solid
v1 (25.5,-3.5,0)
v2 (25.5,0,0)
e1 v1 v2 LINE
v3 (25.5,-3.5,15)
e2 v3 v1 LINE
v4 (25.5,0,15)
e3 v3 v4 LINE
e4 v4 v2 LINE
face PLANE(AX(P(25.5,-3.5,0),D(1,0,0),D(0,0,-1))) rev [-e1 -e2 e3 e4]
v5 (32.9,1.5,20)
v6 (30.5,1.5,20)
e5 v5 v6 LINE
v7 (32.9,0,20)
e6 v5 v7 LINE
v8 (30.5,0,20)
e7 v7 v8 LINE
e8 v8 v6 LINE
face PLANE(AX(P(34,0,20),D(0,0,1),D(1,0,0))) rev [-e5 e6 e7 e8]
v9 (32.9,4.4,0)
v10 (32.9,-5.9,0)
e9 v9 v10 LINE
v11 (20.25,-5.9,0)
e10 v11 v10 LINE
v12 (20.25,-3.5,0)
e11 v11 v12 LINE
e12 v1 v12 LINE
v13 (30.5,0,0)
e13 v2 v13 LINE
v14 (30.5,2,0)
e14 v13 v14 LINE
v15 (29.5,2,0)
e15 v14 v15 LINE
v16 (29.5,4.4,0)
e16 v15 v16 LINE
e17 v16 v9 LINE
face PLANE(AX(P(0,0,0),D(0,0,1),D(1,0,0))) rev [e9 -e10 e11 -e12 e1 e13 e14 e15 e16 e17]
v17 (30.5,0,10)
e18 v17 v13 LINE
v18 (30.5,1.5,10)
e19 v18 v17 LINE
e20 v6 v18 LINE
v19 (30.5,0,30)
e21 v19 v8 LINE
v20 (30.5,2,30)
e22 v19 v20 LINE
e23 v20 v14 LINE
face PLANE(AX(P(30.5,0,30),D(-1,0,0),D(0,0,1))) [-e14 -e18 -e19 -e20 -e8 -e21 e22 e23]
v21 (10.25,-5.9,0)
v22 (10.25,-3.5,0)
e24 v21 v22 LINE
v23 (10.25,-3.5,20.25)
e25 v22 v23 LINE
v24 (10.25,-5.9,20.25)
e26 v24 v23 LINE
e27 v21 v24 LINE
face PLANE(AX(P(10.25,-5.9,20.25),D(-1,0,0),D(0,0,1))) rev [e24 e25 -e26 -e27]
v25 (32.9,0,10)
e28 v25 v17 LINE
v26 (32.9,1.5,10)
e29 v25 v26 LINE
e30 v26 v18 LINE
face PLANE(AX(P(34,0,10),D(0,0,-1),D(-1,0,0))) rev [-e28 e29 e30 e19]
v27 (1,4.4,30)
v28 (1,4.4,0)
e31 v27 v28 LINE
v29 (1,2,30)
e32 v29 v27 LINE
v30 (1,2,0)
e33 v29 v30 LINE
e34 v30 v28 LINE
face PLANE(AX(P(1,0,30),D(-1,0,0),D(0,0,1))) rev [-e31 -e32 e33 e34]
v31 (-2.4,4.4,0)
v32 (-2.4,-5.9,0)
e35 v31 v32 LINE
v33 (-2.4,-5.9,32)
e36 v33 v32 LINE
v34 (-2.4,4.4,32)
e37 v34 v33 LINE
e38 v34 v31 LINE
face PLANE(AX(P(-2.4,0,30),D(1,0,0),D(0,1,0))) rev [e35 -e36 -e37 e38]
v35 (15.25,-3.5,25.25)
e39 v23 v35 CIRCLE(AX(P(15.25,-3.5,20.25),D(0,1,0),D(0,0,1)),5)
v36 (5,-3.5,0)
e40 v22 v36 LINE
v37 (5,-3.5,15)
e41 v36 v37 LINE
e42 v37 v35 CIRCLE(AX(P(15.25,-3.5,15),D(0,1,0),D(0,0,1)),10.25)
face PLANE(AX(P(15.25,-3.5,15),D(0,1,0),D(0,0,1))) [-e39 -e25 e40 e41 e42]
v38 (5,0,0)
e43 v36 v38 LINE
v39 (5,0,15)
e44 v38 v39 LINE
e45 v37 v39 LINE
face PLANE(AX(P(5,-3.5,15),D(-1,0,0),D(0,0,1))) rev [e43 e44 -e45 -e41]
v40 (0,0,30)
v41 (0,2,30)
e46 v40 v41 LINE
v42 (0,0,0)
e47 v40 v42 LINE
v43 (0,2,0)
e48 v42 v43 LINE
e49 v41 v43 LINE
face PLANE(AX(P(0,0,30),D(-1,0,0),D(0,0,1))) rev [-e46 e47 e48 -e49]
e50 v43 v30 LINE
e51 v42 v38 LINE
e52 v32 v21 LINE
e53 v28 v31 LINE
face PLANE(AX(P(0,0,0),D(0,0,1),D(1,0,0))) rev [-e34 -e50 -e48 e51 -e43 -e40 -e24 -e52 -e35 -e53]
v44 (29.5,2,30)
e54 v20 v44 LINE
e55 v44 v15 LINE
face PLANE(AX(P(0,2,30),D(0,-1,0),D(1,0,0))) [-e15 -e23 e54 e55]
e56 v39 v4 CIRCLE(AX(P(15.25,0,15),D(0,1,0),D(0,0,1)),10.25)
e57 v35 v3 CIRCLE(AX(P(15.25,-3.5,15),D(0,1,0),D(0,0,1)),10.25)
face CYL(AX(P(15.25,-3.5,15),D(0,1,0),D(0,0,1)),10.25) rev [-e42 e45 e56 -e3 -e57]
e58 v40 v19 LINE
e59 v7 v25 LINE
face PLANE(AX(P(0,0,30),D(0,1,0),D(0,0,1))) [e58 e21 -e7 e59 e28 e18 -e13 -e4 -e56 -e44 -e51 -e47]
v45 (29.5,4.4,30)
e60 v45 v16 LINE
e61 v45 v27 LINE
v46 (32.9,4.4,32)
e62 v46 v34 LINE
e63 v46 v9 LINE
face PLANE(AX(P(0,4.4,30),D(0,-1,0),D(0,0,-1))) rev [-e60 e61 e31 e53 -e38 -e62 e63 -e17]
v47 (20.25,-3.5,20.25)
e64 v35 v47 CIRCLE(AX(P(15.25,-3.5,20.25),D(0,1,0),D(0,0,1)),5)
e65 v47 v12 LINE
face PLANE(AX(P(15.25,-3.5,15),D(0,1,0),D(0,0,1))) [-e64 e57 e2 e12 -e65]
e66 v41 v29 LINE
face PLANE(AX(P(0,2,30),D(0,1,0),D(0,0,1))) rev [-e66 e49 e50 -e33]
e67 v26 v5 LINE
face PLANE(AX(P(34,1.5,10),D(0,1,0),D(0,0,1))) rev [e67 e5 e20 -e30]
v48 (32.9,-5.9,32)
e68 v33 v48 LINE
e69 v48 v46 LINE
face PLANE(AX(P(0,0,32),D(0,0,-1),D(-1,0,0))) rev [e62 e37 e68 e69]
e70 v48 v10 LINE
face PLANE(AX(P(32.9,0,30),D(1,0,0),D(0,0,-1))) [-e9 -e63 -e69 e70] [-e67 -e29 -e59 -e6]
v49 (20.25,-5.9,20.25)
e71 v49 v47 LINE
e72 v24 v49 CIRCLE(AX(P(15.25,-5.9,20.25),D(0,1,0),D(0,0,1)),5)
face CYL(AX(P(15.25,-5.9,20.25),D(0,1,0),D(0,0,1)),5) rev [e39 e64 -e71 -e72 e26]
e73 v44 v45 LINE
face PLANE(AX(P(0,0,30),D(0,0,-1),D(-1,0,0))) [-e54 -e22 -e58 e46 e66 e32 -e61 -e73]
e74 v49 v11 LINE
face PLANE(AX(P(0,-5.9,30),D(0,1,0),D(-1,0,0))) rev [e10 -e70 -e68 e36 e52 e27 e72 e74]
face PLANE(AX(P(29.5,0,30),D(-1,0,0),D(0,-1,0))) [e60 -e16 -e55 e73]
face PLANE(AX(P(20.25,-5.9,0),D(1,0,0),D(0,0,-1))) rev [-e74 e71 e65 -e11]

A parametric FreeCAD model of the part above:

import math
import FreeCAD as App
import Part
import Sketcher

V = App.Vector
Q = App.Units.Quantity


def add_polygon(sketch, points):
    """Adds a closed chain of lines whose ends are joined by coincident constraints."""
    first, n = sketch.GeometryCount, len(points)
    for a, b in zip(points, points[1:] + points[:1]):
        sketch.addGeometry(Part.LineSegment(App.Vector(*a, 0), App.Vector(*b, 0)), False)
    for i in range(n):
        sketch.addConstraint(Sketcher.Constraint("Coincident", first + i, 2, first + (i + 1) % n, 1))

doc = App.newDocument("Part")
params = doc.addObject("Spreadsheet::Sheet", "Params")
for row, (alias, value) in enumerate([
    ("sketch1_width", "1 mm"),
    ("sketch1_height", "2 mm"),
    ("sketch1_width2", "30.5 mm"),
    ("sketch1_width3", "3.4 mm"),
    ("sketch1_height2", "2.4 mm"),
    ("pad1_length", "30 mm"),
    ("sketch2_height", "15 mm"),
    ("sketch2_radius", "10.25 mm"),
    ("pocket1_length", "3.5 mm"),
    ("sketch3_radius", "5 mm"),
    ("sketch3_height", "20.25 mm"),
    ("sketch4_height", "10 mm"),
    ("sketch4_width", "1.5 mm"),
    ("pocket3_length", "3.5 mm"),
    ("sketch5_width", "35.3 mm"),
    ("sketch5_height", "10.3 mm"),
    ("pad2_length", "2 mm"),
], start=1):
    params.set(f"A{row}", alias)
    params.set(f"B{row}", "=" + value)
    params.setAlias(f"B{row}", alias)

body = doc.addObject("PartDesign::Body", "Body")

sketch1 = body.newObject("Sketcher::SketchObject", "Sketch")
sketch1.AttachmentSupport = (doc.getObject("XY_Plane"), [""])
sketch1.MapMode = "FlatFace"
add_polygon(sketch1, [(30.5, 0), (0, 0), (0, 2), (1, 2), (1, 4.4), (-2.4, 4.4), (-2.4, -5.9), (32.9, -5.9), (32.9, 4.4), (29.5, 4.4), (29.5, 2), (30.5, 2)])
sketch1.addConstraint([
    Sketcher.Constraint("Horizontal", 0),
    Sketcher.Constraint("Vertical", 1),
    Sketcher.Constraint("Horizontal", 2),
    Sketcher.Constraint("Vertical", 3),
    Sketcher.Constraint("Horizontal", 4),
    Sketcher.Constraint("Vertical", 5),
    Sketcher.Constraint("Horizontal", 6),
    Sketcher.Constraint("Vertical", 7),
    Sketcher.Constraint("Horizontal", 8),
    Sketcher.Constraint("Vertical", 9),
    Sketcher.Constraint("Horizontal", 10),
    Sketcher.Constraint("Vertical", 11),
    Sketcher.Constraint("Coincident", 0, 2, -1, 1),
    Sketcher.Constraint("Horizontal", 4, 2, 7, 2),
    Sketcher.Constraint("Horizontal", 2, 2, 9, 2),
    Sketcher.Constraint("Equal", 4, 8),
    Sketcher.Constraint("Equal", 2, 10),
    Sketcher.Constraint("DistanceX", 2, 1, 2, 2, Q("1 mm")),
    Sketcher.Constraint("DistanceY", 1, 1, 1, 2, Q("2 mm")),
    Sketcher.Constraint("DistanceX", 0, 2, 0, 1, Q("30.5 mm")),
    Sketcher.Constraint("DistanceX", 4, 2, 4, 1, Q("3.4 mm")),
    Sketcher.Constraint("DistanceY", 3, 1, 3, 2, Q("2.4 mm")),
    Sketcher.Constraint("DistanceY", 5, 2, 5, 1, Q("10.3 mm")),
])
sketch1.setExpression("Constraints[29]", "Params.sketch1_width")
sketch1.setExpression("Constraints[30]", "Params.sketch1_height")
sketch1.setExpression("Constraints[31]", "Params.sketch1_width2")
sketch1.setExpression("Constraints[32]", "Params.sketch1_width3")
sketch1.setExpression("Constraints[33]", "Params.sketch1_height2")
pad1 = body.newObject("PartDesign::Pad", "Pad")
pad1.Profile = sketch1
pad1.setExpression("Length", "Params.pad1_length")

sketch2 = body.newObject("Sketcher::SketchObject", "Sketch001")
sketch2.AttachmentSupport = (doc.getObject("XZ_Plane"), [""])
sketch2.MapMode = "FlatFace"
sketch2.addGeometry([
    Part.LineSegment(V(5, 0, 0), V(5, 15, 0)),
    Part.ArcOfCircle(Part.Circle(V(15, 15, 0), V(0, 0, 1), 10), math.radians(0), math.radians(180)),
    Part.LineSegment(V(26, 15, 0), V(26, 0, 0)),
    Part.LineSegment(V(26, 0, 0), V(5, 0, 0)),
], False)
sketch2.addConstraint([
    Sketcher.Constraint("Tangent", 0, 2, 1, 2),
    Sketcher.Constraint("Tangent", 1, 1, 2, 1),
    Sketcher.Constraint("Coincident", 2, 2, 3, 1),
    Sketcher.Constraint("Coincident", 3, 2, 0, 1),
    Sketcher.Constraint("Vertical", 0),
    Sketcher.Constraint("Vertical", 2),
    Sketcher.Constraint("Horizontal", 3),
    Sketcher.Constraint("PointOnObject", 2, 2, -1),
    Sketcher.Constraint("DistanceY", 0, 1, 0, 2, Q("15 mm")),
    Sketcher.Constraint("Radius", 1, Q("10.25 mm")),
    Sketcher.Constraint("DistanceX", -1, 1, 0, 2, Q("5 mm")),
])
sketch2.setExpression("Constraints[8]", "Params.sketch2_height")
sketch2.setExpression("Constraints[9]", "Params.sketch2_radius")
pocket1 = body.newObject("PartDesign::Pocket", "Pocket")
pocket1.Profile = sketch2
pocket1.setExpression("Length", "Params.pocket1_length")
pocket1.Reversed = True

sketch3 = body.newObject("Sketcher::SketchObject", "Sketch002")
sketch3.AttachmentSupport = (doc.getObject("XZ_Plane"), [""])
sketch3.MapMode = "FlatFace"
sketch3.AttachmentOffset = App.Placement(V(0, 0, 3.5), App.Rotation())
sketch3.addGeometry([
    Part.LineSegment(V(10, 0, 0), V(10, 20, 0)),
    Part.ArcOfCircle(Part.Circle(V(15, 20, 0), V(0, 0, 1), 5), math.radians(0), math.radians(180)),
    Part.LineSegment(V(20, 20, 0), V(20, 0, 0)),
    Part.LineSegment(V(20, 0, 0), V(10, 0, 0)),
], False)
sketch3.addConstraint([
    Sketcher.Constraint("Tangent", 0, 2, 1, 2),
    Sketcher.Constraint("Tangent", 1, 1, 2, 1),
    Sketcher.Constraint("Coincident", 2, 2, 3, 1),
    Sketcher.Constraint("Coincident", 3, 2, 0, 1),
    Sketcher.Constraint("Vertical", 0),
    Sketcher.Constraint("Vertical", 2),
    Sketcher.Constraint("Horizontal", 3),
    Sketcher.Constraint("PointOnObject", 2, 2, -1),
    Sketcher.Constraint("Radius", 1, Q("5 mm")),
    Sketcher.Constraint("DistanceY", 0, 1, 0, 2, Q("20.25 mm")),
    Sketcher.Constraint("DistanceX", -1, 1, 1, 3, Q("15.25 mm")),
])
sketch3.setExpression("Constraints[8]", "Params.sketch3_radius")
sketch3.setExpression("Constraints[9]", "Params.sketch3_height")
pocket2 = body.newObject("PartDesign::Pocket", "Pocket001")
pocket2.Profile = sketch3
pocket2.Type = "ThroughAll"
pocket2.Reversed = True

sketch4 = body.newObject("Sketcher::SketchObject", "Sketch003")
sketch4.AttachmentSupport = (doc.getObject("YZ_Plane"), [""])
sketch4.MapMode = "FlatFace"
sketch4.AttachmentOffset = App.Placement(V(0, 0, 30.5), App.Rotation())
add_polygon(sketch4, [(1.5, 10), (0, 10), (0, 20), (1.5, 20)])
sketch4.addConstraint([
    Sketcher.Constraint("Horizontal", 0),
    Sketcher.Constraint("Vertical", 1),
    Sketcher.Constraint("Horizontal", 2),
    Sketcher.Constraint("Vertical", 3),
    Sketcher.Constraint("PointOnObject", 0, 2, -2),
    Sketcher.Constraint("DistanceY", 1, 1, 1, 2, Q("10 mm")),
    Sketcher.Constraint("DistanceX", 0, 2, 0, 1, Q("1.5 mm")),
    Sketcher.Constraint("DistanceY", -1, 1, 0, 2, Q("10 mm")),
])
sketch4.setExpression("Constraints[9]", "Params.sketch4_height")
sketch4.setExpression("Constraints[10]", "Params.sketch4_width")
pocket3 = body.newObject("PartDesign::Pocket", "Pocket002")
pocket3.Profile = sketch4
pocket3.setExpression("Length", "Params.pocket3_length")
pocket3.Reversed = True

sketch5 = body.newObject("Sketcher::SketchObject", "Sketch004")
sketch5.AttachmentSupport = (doc.getObject("XY_Plane"), [""])
sketch5.MapMode = "FlatFace"
sketch5.AttachmentOffset = App.Placement(V(0, 0, 30), App.Rotation())
add_polygon(sketch5, [(-2, 4), (-2, -6), (33, -6), (33, 4)])
sketch5.addConstraint([
    Sketcher.Constraint("Vertical", 0),
    Sketcher.Constraint("Horizontal", 1),
    Sketcher.Constraint("Vertical", 2),
    Sketcher.Constraint("Horizontal", 3),
    Sketcher.Constraint("DistanceX", 1, 1, 1, 2, Q("35.3 mm")),
    Sketcher.Constraint("DistanceY", 0, 2, 0, 1, Q("10.3 mm")),
    Sketcher.Constraint("DistanceX", 0, 2, -1, 1, Q("2.4 mm")),
    Sketcher.Constraint("DistanceY", 0, 2, -1, 1, Q("5.9 mm")),
])
sketch5.setExpression("Constraints[8]", "Params.sketch5_width")
sketch5.setExpression("Constraints[9]", "Params.sketch5_height")
pad2 = body.newObject("PartDesign::Pad", "Pad001")
pad2.Profile = sketch5
pad2.setExpression("Length", "Params.pad2_length")

doc.recompute()
